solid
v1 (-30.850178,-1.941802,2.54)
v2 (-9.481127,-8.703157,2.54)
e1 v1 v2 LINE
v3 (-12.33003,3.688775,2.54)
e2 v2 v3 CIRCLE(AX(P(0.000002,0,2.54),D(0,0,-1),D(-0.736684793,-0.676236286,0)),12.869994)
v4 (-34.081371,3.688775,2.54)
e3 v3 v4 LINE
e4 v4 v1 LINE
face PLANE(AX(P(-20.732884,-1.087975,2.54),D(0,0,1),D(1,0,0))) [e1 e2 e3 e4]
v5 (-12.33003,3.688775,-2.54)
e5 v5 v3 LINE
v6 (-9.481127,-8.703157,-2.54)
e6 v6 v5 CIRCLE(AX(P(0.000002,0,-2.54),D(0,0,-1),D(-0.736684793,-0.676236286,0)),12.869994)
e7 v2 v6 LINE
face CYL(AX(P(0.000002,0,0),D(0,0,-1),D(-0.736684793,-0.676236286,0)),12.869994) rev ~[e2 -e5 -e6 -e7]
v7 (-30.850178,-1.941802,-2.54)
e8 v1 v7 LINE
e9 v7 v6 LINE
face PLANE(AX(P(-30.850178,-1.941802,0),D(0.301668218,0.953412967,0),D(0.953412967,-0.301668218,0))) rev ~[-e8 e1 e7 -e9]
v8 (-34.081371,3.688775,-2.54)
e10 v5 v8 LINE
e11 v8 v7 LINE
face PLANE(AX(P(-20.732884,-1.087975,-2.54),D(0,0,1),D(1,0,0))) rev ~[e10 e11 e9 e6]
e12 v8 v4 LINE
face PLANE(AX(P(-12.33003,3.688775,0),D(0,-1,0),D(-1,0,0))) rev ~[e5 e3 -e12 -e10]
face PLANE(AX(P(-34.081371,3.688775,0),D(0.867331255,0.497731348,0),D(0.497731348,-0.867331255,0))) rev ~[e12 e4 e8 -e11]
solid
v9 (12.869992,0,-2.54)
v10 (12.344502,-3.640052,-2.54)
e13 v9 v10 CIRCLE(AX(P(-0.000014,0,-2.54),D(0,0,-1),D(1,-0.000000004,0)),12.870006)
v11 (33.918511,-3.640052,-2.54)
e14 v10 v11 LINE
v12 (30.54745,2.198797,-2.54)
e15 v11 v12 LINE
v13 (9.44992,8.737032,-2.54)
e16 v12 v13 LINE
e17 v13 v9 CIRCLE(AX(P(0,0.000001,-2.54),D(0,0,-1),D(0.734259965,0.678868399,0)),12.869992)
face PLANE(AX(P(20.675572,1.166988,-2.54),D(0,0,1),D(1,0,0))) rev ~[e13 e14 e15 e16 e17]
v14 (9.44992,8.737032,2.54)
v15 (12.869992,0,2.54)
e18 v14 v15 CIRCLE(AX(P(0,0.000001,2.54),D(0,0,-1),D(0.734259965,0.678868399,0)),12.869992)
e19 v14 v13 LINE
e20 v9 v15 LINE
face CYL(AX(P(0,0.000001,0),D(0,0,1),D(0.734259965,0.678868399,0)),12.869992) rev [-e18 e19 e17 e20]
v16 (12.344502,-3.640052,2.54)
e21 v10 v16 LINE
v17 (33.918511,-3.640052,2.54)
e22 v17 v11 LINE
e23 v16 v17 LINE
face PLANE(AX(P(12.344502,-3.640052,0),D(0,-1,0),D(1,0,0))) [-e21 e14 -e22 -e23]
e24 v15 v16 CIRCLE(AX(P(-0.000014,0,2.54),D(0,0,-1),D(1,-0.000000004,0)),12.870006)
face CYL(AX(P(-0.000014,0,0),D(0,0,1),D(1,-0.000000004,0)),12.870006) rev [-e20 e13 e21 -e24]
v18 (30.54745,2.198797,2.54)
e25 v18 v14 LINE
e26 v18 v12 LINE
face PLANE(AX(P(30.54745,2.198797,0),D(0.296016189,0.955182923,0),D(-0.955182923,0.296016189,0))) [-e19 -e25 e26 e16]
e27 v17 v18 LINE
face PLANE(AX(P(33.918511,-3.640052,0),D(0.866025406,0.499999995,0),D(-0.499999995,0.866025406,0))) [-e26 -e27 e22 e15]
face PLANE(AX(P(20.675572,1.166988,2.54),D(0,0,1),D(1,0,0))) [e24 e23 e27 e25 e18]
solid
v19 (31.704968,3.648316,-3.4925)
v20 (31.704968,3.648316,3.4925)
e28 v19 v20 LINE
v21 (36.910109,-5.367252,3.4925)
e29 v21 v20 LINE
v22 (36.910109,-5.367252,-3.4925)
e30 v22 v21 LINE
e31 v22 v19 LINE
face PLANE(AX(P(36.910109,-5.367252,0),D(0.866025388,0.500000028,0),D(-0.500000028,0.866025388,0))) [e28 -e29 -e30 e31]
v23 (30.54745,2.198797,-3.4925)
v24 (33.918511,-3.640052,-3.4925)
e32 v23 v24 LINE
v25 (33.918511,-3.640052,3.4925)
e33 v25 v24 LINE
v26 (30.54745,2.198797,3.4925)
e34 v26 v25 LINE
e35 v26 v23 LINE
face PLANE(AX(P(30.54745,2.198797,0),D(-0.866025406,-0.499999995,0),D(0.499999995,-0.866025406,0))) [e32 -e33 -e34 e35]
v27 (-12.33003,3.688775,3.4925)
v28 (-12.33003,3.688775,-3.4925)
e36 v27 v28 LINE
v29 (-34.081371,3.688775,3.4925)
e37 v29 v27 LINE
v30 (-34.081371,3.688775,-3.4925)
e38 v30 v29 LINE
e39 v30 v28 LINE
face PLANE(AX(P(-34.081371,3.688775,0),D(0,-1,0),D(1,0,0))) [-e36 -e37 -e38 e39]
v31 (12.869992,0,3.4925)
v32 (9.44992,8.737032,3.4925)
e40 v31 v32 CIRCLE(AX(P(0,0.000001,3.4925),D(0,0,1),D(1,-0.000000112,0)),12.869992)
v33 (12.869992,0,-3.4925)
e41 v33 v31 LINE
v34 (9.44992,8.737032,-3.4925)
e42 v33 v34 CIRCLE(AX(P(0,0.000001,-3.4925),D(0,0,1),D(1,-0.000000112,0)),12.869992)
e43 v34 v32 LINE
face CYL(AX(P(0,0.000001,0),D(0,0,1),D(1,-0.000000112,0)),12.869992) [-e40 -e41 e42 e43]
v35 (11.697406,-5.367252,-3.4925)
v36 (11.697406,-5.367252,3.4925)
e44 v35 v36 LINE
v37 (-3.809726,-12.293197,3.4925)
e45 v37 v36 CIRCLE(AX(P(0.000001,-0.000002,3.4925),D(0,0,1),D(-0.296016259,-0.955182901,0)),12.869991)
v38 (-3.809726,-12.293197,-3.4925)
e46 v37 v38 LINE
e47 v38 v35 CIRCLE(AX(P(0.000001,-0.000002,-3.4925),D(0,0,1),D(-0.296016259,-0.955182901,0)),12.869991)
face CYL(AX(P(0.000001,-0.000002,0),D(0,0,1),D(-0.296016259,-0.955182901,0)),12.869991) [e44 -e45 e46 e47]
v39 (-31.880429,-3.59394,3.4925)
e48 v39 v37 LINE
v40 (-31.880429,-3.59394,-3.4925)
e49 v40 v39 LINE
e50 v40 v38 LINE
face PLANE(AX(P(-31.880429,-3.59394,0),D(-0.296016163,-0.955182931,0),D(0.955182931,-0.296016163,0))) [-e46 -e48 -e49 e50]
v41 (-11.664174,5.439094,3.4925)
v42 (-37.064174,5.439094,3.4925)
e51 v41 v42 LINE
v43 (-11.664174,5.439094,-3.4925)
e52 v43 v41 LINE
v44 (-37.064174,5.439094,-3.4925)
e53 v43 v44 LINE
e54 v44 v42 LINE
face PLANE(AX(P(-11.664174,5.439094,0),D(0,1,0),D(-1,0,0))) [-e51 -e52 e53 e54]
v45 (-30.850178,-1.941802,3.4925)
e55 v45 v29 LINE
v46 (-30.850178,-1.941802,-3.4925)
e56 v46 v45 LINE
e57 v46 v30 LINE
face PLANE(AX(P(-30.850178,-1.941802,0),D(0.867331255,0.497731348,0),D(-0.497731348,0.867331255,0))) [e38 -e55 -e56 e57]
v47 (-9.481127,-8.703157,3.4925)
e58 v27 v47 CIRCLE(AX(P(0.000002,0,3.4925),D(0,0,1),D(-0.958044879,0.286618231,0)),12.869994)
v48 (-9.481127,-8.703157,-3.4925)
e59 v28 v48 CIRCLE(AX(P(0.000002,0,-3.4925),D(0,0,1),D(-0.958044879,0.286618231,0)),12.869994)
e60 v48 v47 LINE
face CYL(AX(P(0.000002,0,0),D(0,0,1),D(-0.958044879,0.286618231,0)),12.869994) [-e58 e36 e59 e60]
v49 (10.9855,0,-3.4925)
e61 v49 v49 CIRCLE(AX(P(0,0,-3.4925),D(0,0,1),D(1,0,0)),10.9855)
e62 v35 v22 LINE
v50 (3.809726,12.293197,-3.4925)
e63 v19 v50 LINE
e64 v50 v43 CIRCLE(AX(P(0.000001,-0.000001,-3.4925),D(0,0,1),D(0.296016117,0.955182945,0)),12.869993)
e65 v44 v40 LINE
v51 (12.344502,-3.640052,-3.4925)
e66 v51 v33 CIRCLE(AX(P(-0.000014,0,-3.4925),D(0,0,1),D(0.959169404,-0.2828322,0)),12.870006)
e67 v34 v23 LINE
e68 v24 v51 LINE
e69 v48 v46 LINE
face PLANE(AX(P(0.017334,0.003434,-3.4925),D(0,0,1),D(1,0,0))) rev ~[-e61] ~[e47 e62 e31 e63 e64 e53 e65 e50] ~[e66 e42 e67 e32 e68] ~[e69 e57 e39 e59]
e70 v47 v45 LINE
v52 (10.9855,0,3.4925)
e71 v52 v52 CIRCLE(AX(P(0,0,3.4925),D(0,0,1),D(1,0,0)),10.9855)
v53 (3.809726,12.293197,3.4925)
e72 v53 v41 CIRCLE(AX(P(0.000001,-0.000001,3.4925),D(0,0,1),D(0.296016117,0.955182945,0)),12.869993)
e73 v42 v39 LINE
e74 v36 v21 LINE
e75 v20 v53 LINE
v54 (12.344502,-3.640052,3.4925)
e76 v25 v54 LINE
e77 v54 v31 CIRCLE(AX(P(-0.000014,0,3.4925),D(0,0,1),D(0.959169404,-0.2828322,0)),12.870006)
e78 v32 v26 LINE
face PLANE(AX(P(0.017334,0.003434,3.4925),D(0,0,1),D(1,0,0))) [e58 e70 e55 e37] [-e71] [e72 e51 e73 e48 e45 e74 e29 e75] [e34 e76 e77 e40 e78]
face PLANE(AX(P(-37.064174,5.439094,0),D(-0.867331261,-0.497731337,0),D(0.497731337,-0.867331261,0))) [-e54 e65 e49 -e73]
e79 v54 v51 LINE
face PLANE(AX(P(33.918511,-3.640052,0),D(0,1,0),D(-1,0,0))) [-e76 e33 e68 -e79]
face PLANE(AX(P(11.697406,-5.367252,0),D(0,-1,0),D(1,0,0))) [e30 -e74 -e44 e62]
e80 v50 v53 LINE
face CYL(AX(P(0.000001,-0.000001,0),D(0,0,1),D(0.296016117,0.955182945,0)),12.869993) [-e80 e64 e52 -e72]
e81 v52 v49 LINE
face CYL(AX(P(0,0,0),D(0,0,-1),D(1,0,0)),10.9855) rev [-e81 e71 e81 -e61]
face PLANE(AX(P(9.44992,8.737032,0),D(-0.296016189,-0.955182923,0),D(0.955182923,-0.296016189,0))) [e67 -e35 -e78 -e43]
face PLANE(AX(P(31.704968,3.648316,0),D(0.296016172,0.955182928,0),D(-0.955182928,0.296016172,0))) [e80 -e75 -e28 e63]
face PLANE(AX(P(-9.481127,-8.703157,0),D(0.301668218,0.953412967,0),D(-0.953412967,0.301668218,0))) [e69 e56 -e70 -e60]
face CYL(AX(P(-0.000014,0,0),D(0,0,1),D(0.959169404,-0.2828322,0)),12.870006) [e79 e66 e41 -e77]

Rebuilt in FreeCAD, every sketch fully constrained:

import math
import FreeCAD as App
import Part
import Sketcher
Q = App.Units.Quantity

doc = App.newDocument("Part")
body = doc.addObject("PartDesign::Body", "Body")
body.AllowCompound = True

sketch1 = body.newObject("Sketcher::SketchObject", "Sketch")
sketch1.AttachmentSupport = (doc.getObject("XY_Plane"), [""])
sketch1.MapMode = "FlatFace"
sketch1.addGeometry(Part.ArcOfCircle(Part.Circle(App.Vector(0, 0, 0), App.Vector(0, 0, 1), 12.9), math.radians(163), math.radians(223)), False)
sketch1.addGeometry(Part.LineSegment(App.Vector(-12.3, 3.7, 0), App.Vector(-34.1, 3.7, 0)), False)
sketch1.addGeometry(Part.LineSegment(App.Vector(-34.1, 3.7, 0), App.Vector(-30.9, -1.9, 0)), False)
sketch1.addGeometry(Part.LineSegment(App.Vector(-30.9, -1.9, 0), App.Vector(-9.5, -8.7, 0)), False)
sketch1.addGeometry(Part.ArcOfCircle(Part.Circle(App.Vector(0, 0, 0), App.Vector(0, 0, 1), 12.9), math.radians(0), math.radians(43)), False)
sketch1.addGeometry(Part.ArcOfCircle(Part.Circle(App.Vector(0, 0, 0), App.Vector(0, 0, 1), 12.9), math.radians(-16.43), math.radians(0)), False)
sketch1.addGeometry(Part.LineSegment(App.Vector(12.3, -3.6, 0), App.Vector(33.9, -3.6, 0)), False)
sketch1.addGeometry(Part.LineSegment(App.Vector(33.9, -3.6, 0), App.Vector(30.5, 2.2, 0)), False)
sketch1.addGeometry(Part.LineSegment(App.Vector(30.5, 2.2, 0), App.Vector(9.4, 8.7, 0)), False)
sketch1.addConstraint(Sketcher.Constraint("Coincident", 0, 1, 1, 1))
sketch1.addConstraint(Sketcher.Constraint("Coincident", 1, 2, 2, 1))
sketch1.addConstraint(Sketcher.Constraint("Coincident", 2, 2, 3, 1))
sketch1.addConstraint(Sketcher.Constraint("Coincident", 3, 2, 0, 2))
sketch1.addConstraint(Sketcher.Constraint("Tangent", 4, 1, 5, 2))
sketch1.addConstraint(Sketcher.Constraint("Coincident", 5, 1, 6, 1))
sketch1.addConstraint(Sketcher.Constraint("Coincident", 6, 2, 7, 1))
sketch1.addConstraint(Sketcher.Constraint("Coincident", 7, 2, 8, 1))
sketch1.addConstraint(Sketcher.Constraint("Coincident", 8, 2, 4, 2))
sketch1.addConstraint(Sketcher.Constraint("Horizontal", 1))
sketch1.addConstraint(Sketcher.Constraint("Horizontal", 6))
sketch1.addConstraint(Sketcher.Constraint("Coincident", 0, 3, -1, 1))
sketch1.addConstraint(Sketcher.Constraint("Coincident", 4, 3, -1, 1))
sketch1.addConstraint(Sketcher.Constraint("PointOnObject", 4, 1, -1))
sketch1.addConstraint(Sketcher.Constraint("Angle", 7, Q("120 deg")))
sketch1.addConstraint(Sketcher.Constraint("Radius", 4, 12.869992))
sketch1.addConstraint(Sketcher.Constraint("Radius", 0, 12.869994))
sketch1.addConstraint(Sketcher.Constraint("Radius", 5, 12.870006))
sketch1.addConstraint(Sketcher.Constraint("DistanceX", 1, 2, 1, 1, 21.751341))
sketch1.addConstraint(Sketcher.Constraint("DistanceX", 6, 1, 6, 2, 21.574009))
sketch1.addConstraint(Sketcher.Constraint("DistanceX", 0, 3, 5, 1, 12.3445))
sketch1.addConstraint(Sketcher.Constraint("Distance", 2, 6.491841))
sketch1.addConstraint(Sketcher.Constraint("DistanceX", 0, 1, -1, 1, 12.33003))
sketch1.addConstraint(Sketcher.Constraint("DistanceX", -1, 1, 7, 2, 30.54745))
sketch1.addConstraint(Sketcher.Constraint("DistanceX", -1, 1, 8, 2, 9.44992))
sketch1.addConstraint(Sketcher.Constraint("DistanceX", 2, 2, 4, 3, 30.850178))
sketch1.addConstraint(Sketcher.Constraint("DistanceY", 3, 2, 4, 3, 8.703158))
pad1 = body.newObject("PartDesign::Pad", "Pad")
pad1.Profile = sketch1
pad1.Length = Q("0.2 in")
pad1.Midplane = True
body2 = doc.addObject("PartDesign::Body", "Body001")

sketch2 = body2.newObject("Sketcher::SketchObject", "Sketch001")
sketch2.AttachmentSupport = (doc.getObject("XY_Plane001"), [""])
sketch2.MapMode = "FlatFace"
sketch2.addGeometry(Part.ArcOfCircle(Part.Circle(App.Vector(0.000001, -0.000002, 0), App.Vector(0, 0, 1), 12.869991), math.radians(-107.218487), math.radians(-24.647603)), False)
sketch2.addGeometry(Part.LineSegment(App.Vector(11.697406, -5.367252, 0), App.Vector(36.910109, -5.367252, 0)), False)
sketch2.addGeometry(Part.LineSegment(App.Vector(36.910109, -5.367252, 0), App.Vector(31.704968, 3.648316, 0)), False)
sketch2.addGeometry(Part.LineSegment(App.Vector(31.704968, 3.648316, 0), App.Vector(3.809726, 12.293197, 0)), False)
sketch2.addGeometry(Part.ArcOfCircle(Part.Circle(App.Vector(0.000001, -0.000001, 0), App.Vector(0, 0, 1), 12.869993), math.radians(72.781522), math.radians(154.999996)), False)
sketch2.addGeometry(Part.LineSegment(App.Vector(-11.664174, 5.439094, 0), App.Vector(-37.064174, 5.439094, 0)), False)
sketch2.addGeometry(Part.LineSegment(App.Vector(-37.064174, 5.439094, 0), App.Vector(-31.880429, -3.59394, 0)), False)
sketch2.addGeometry(Part.LineSegment(App.Vector(-31.880429, -3.59394, 0), App.Vector(-3.809726, -12.293197, 0)), False)
sketch2.addGeometry(Part.ArcOfCircle(Part.Circle(App.Vector(-0.000014, 0, 0), App.Vector(0, 0, 1), 12.870006), math.radians(-16.429312), math.radians(0)), False)
sketch2.addGeometry(Part.ArcOfCircle(Part.Circle(App.Vector(0, 0.000001, 0), App.Vector(0, 0, 1), 12.869992), math.radians(-0.000006), math.radians(42.755279)), False)
sketch2.addGeometry(Part.LineSegment(App.Vector(9.44992, 8.737032, 0), App.Vector(30.54745, 2.198797, 0)), False)
sketch2.addGeometry(Part.LineSegment(App.Vector(30.54745, 2.198797, 0), App.Vector(33.918511, -3.640052, 0)), False)
sketch2.addGeometry(Part.LineSegment(App.Vector(33.918511, -3.640052, 0), App.Vector(12.344502, -3.640052, 0)), False)
sketch2.addGeometry(Part.ArcOfCircle(Part.Circle(App.Vector(0.000002, 0, 0), App.Vector(0, 0, 1), 12.869994), math.radians(163.344398), math.radians(222.550229)), False)
sketch2.addGeometry(Part.LineSegment(App.Vector(-9.481127, -8.703157, 0), App.Vector(-30.850178, -1.941802, 0)), False)
sketch2.addGeometry(Part.LineSegment(App.Vector(-30.850178, -1.941802, 0), App.Vector(-34.081371, 3.688775, 0)), False)
sketch2.addGeometry(Part.LineSegment(App.Vector(-34.081371, 3.688775, 0), App.Vector(-12.33003, 3.688775, 0)), False)
sketch2.addGeometry(Part.Circle(App.Vector(0, 0, 0), App.Vector(0, 0, 1), 10.9855), False)
sketch2.addConstraint(Sketcher.Constraint("Coincident", 0, 2, 1, 1))
sketch2.addConstraint(Sketcher.Constraint("Coincident", 1, 2, 2, 1))
sketch2.addConstraint(Sketcher.Constraint("Coincident", 2, 2, 3, 1))
sketch2.addConstraint(Sketcher.Constraint("Coincident", 3, 2, 4, 1))
sketch2.addConstraint(Sketcher.Constraint("Coincident", 4, 2, 5, 1))
sketch2.addConstraint(Sketcher.Constraint("Coincident", 5, 2, 6, 1))
sketch2.addConstraint(Sketcher.Constraint("Coincident", 6, 2, 7, 1))
sketch2.addConstraint(Sketcher.Constraint("Coincident", 7, 2, 0, 1))
sketch2.addConstraint(Sketcher.Constraint("Coincident", 8, 2, 9, 1))
sketch2.addConstraint(Sketcher.Constraint("Coincident", 9, 2, 10, 1))
sketch2.addConstraint(Sketcher.Constraint("Coincident", 10, 2, 11, 1))
sketch2.addConstraint(Sketcher.Constraint("Coincident", 11, 2, 12, 1))
sketch2.addConstraint(Sketcher.Constraint("Coincident", 12, 2, 8, 1))
sketch2.addConstraint(Sketcher.Constraint("Coincident", 13, 2, 14, 1))
sketch2.addConstraint(Sketcher.Constraint("Coincident", 14, 2, 15, 1))
sketch2.addConstraint(Sketcher.Constraint("Coincident", 15, 2, 16, 1))
sketch2.addConstraint(Sketcher.Constraint("Coincident", 16, 2, 13, 1))
sketch2.addConstraint(Sketcher.Constraint("Horizontal", 1))
sketch2.addConstraint(Sketcher.Constraint("Horizontal", 5))
sketch2.addConstraint(Sketcher.Constraint("Horizontal", 12))
sketch2.addConstraint(Sketcher.Constraint("Horizontal", 16))
sketch2.addConstraint(Sketcher.Constraint("Coincident", 0, 3, -1, 1))
sketch2.addConstraint(Sketcher.Constraint("Coincident", 4, 3, -1, 1))
sketch2.addConstraint(Sketcher.Constraint("Coincident", 9, 3, -1, 1))
sketch2.addConstraint(Sketcher.Constraint("Coincident", 13, 3, -1, 1))
sketch2.addConstraint(Sketcher.Constraint("Coincident", 17, 3, -1, 1))
sketch2.addConstraint(Sketcher.Constraint("PointOnObject", 8, 3, -1))
sketch2.addConstraint(Sketcher.Constraint("PointOnObject", 8, 2, -1))
sketch2.addConstraint(Sketcher.Constraint("DistanceX", 5, 2, 5, 1, Q("1 in")))
sketch2.addConstraint(Sketcher.Constraint("Diameter", 17, Q("0.865 in")))
sketch2.addConstraint(Sketcher.Constraint("Radius", 0, 12.869991))
sketch2.addConstraint(Sketcher.Constraint("Radius", 9, 12.869992))
sketch2.addConstraint(Sketcher.Constraint("DistanceY", 1, 2, 11, 2, Q("0.068 in")))
sketch2.addConstraint(Sketcher.Constraint("Radius", 4, 12.869993))
sketch2.addConstraint(Sketcher.Constraint("Radius", 8, 12.870006))
sketch2.addConstraint(Sketcher.Constraint("Radius", 13, 12.869994))
sketch2.addConstraint(Sketcher.Constraint("DistanceX", 12, 2, 12, 1, 21.574009))
sketch2.addConstraint(Sketcher.Constraint("DistanceX", 16, 1, 16, 2, 21.751341))
sketch2.addConstraint(Sketcher.Constraint("DistanceY", 0, 3, 3, 2, 12.293199))
sketch2.addConstraint(Sketcher.Constraint("DistanceX", 13, 3, 12, 2, 12.3445))
sketch2.addConstraint(Sketcher.Constraint("DistanceX", 13, 2, 7, 2, 5.671401))
sketch2.addConstraint(Sketcher.Constraint("Distance", 2, 10.410281))
sketch2.addConstraint(Sketcher.Constraint("Distance", 15, 6.491841))
sketch2.addConstraint(Sketcher.Constraint("DistanceX", 1, 1, 1, 2, 25.212703))
sketch2.addConstraint(Sketcher.Constraint("DistanceX", -1, 1, 2, 2, 31.704968))
sketch2.addConstraint(Sketcher.Constraint("DistanceX", 6, 2, -1, 1, 31.880429))
sketch2.addConstraint(Sketcher.Constraint("DistanceY", 6, 2, -1, 1, 3.59394))
sketch2.addConstraint(Sketcher.Constraint("DistanceX", -1, 1, 9, 2, 9.44992))
sketch2.addConstraint(Sketcher.Constraint("DistanceX", -1, 1, 10, 2, 30.54745))
sketch2.addConstraint(Sketcher.Constraint("DistanceX", 15, 2, -1, 1, 34.081371))
sketch2.addConstraint(Sketcher.Constraint("DistanceX", 4, 2, 8, 3, 11.66416))
sketch2.addConstraint(Sketcher.Constraint("DistanceY", 10, 2, 2, 2, 1.449519))
sketch2.addConstraint(Sketcher.Constraint("DistanceY", 7, 2, 13, 2, 3.59004))
sketch2.addConstraint(Sketcher.Constraint("DistanceX", 6, 2, 14, 2, 1.030251))
pad2 = body2.newObject("PartDesign::Pad", "Pad001")
pad2.Profile = sketch2
pad2.Length = Q("0.275 in")
pad2.Midplane = True

doc.recompute()
